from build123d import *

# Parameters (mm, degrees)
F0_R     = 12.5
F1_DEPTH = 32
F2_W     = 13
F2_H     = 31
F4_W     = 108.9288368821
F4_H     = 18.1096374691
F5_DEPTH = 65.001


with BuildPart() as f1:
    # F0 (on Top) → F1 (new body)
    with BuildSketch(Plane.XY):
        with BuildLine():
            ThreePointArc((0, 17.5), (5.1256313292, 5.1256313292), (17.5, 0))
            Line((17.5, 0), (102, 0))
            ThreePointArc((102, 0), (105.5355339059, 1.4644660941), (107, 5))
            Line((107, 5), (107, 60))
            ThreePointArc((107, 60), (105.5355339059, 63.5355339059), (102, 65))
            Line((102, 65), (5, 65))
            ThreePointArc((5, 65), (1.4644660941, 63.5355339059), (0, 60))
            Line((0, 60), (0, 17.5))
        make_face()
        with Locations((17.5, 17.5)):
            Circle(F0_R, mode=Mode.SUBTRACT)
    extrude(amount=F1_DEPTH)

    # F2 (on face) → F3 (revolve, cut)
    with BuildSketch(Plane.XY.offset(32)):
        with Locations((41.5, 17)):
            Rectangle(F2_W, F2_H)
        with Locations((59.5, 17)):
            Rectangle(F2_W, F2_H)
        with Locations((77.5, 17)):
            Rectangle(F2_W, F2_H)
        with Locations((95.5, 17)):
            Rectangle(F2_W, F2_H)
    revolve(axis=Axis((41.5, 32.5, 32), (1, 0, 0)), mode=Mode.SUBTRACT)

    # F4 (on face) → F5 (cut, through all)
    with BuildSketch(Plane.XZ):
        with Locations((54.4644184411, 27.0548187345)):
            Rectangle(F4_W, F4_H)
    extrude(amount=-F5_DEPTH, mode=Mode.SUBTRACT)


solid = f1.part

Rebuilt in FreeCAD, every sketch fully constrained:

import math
import FreeCAD as App
import Part
import Sketcher

V = App.Vector
Q = App.Units.Quantity


def add_polygon(sketch, points):
    """Adds a closed chain of lines whose ends are joined by coincident constraints."""
    first, n = sketch.GeometryCount, len(points)
    for a, b in zip(points, points[1:] + points[:1]):
        sketch.addGeometry(Part.LineSegment(App.Vector(*a, 0), App.Vector(*b, 0)), False)
    for i in range(n):
        sketch.addConstraint(Sketcher.Constraint("Coincident", first + i, 2, first + (i + 1) % n, 1))

doc = App.newDocument("Part")
body = doc.addObject("PartDesign::Body", "Body")

# Sketch on XY plane
sketch1 = doc.addObject("Sketcher::SketchObject", "Sketch")
body.addObject(sketch1)
sketch1.AttachmentSupport = (doc.XY_Plane, [""])
sketch1.MapMode = "FlatFace"
sketch1.addGeometry(Part.ArcOfCircle(Part.Circle(V(18, 18, 0), V(0, 0, 1), 18), math.radians(180), math.radians(270)), False)
sketch1.addGeometry(Part.LineSegment(V(18, 0, 0), V(102, 0, 0)), False)
sketch1.addGeometry(Part.ArcOfCircle(Part.Circle(V(102, 5, 0), V(0, 0, 1), 5), math.radians(-90), math.radians(0)), False)
sketch1.addGeometry(Part.LineSegment(V(107, 5, 0), V(107, 60, 0)), False)
sketch1.addGeometry(Part.ArcOfCircle(Part.Circle(V(102, 60, 0), V(0, 0, 1), 5), math.radians(0), math.radians(90)), False)
sketch1.addGeometry(Part.LineSegment(V(102, 65, 0), V(5, 65, 0)), False)
sketch1.addGeometry(Part.ArcOfCircle(Part.Circle(V(5, 60, 0), V(0, 0, 1), 5), math.radians(90), math.radians(180)), False)
sketch1.addGeometry(Part.LineSegment(V(0, 60, 0), V(0, 18, 0)), False)
sketch1.addGeometry(Part.Circle(V(18, 18, 0), V(0, 0, 1), 12), False)
sketch1.addConstraint(Sketcher.Constraint("Tangent", 0, 2, 1, 1))
sketch1.addConstraint(Sketcher.Constraint("Tangent", 1, 2, 2, 1))
sketch1.addConstraint(Sketcher.Constraint("Tangent", 2, 2, 3, 1))
sketch1.addConstraint(Sketcher.Constraint("Tangent", 3, 2, 4, 1))
sketch1.addConstraint(Sketcher.Constraint("Tangent", 4, 2, 5, 1))
sketch1.addConstraint(Sketcher.Constraint("Tangent", 5, 2, 6, 1))
sketch1.addConstraint(Sketcher.Constraint("Tangent", 6, 2, 7, 1))
sketch1.addConstraint(Sketcher.Constraint("Tangent", 7, 2, 0, 1))
sketch1.addConstraint(Sketcher.Constraint("Horizontal", 1))
sketch1.addConstraint(Sketcher.Constraint("Vertical", 3))
sketch1.addConstraint(Sketcher.Constraint("Horizontal", 5))
sketch1.addConstraint(Sketcher.Constraint("Vertical", 7))
sketch1.addConstraint(Sketcher.Constraint("Coincident", 8, 3, 0, 3))
sketch1.addConstraint(Sketcher.Constraint("Equal", 2, 4))
sketch1.addConstraint(Sketcher.Constraint("Equal", 4, 6))
sketch1.addConstraint(Sketcher.Constraint("PointOnObject", 0, 2, -1))
sketch1.addConstraint(Sketcher.Constraint("PointOnObject", 6, 2, -2))
sketch1.addConstraint(Sketcher.Constraint("Diameter", 8, Q("25 mm")))
sketch1.addConstraint(Sketcher.Constraint("Radius", 2, Q("5 mm")))
sketch1.addConstraint(Sketcher.Constraint("Radius", 0, Q("17.5 mm")))
sketch1.addConstraint(Sketcher.Constraint("DistanceX", 5, 2, 5, 1, Q("97 mm")))
sketch1.addConstraint(Sketcher.Constraint("DistanceY", 3, 1, 3, 2, Q("55 mm")))
pad1 = doc.addObject("PartDesign::Pad", "Pad")
body.addObject(pad1)
pad1.Profile = sketch1
pad1.Length = 32

# Sketch on XY plane
sketch2 = doc.addObject("Sketcher::SketchObject", "Sketch001")
body.addObject(sketch2)
sketch2.AttachmentSupport = (doc.XY_Plane, [""])
sketch2.MapMode = "FlatFace"
sketch2.AttachmentOffset = App.Placement(V(0, 0, 32), App.Rotation())
add_polygon(sketch2, [(35, 32), (35, 2), (48, 2), (48, 32)])  # lines 0-3
add_polygon(sketch2, [(53, 32), (53, 2), (66, 2), (66, 32)])  # lines 4-7
add_polygon(sketch2, [(71, 32), (71, 2), (84, 2), (84, 32)])  # lines 8-11
add_polygon(sketch2, [(89, 32), (89, 2), (102, 2), (102, 32)])  # lines 12-15
sketch2.addGeometry(Part.LineSegment(V(35, 32, 0), V(102, 32, 0)), True)  # axis
sketch2.addConstraint(Sketcher.Constraint("Vertical", 0))
sketch2.addConstraint(Sketcher.Constraint("Horizontal", 1))
sketch2.addConstraint(Sketcher.Constraint("Vertical", 2))
sketch2.addConstraint(Sketcher.Constraint("Horizontal", 3))
sketch2.addConstraint(Sketcher.Constraint("Vertical", 4))
sketch2.addConstraint(Sketcher.Constraint("Horizontal", 5))
sketch2.addConstraint(Sketcher.Constraint("Vertical", 6))
sketch2.addConstraint(Sketcher.Constraint("Horizontal", 7))
sketch2.addConstraint(Sketcher.Constraint("Vertical", 8))
sketch2.addConstraint(Sketcher.Constraint("Horizontal", 9))
sketch2.addConstraint(Sketcher.Constraint("Vertical", 10))
sketch2.addConstraint(Sketcher.Constraint("Horizontal", 11))
sketch2.addConstraint(Sketcher.Constraint("Vertical", 12))
sketch2.addConstraint(Sketcher.Constraint("Horizontal", 13))
sketch2.addConstraint(Sketcher.Constraint("Vertical", 14))
sketch2.addConstraint(Sketcher.Constraint("Horizontal", 15))
sketch2.addConstraint(Sketcher.Constraint("Horizontal", 16))
sketch2.addConstraint(Sketcher.Constraint("Coincident", 16, 1, 3, 2))
sketch2.addConstraint(Sketcher.Constraint("Coincident", 16, 2, 14, 2))
sketch2.addConstraint(Sketcher.Constraint("Horizontal", 1, 2, 4, 2))
sketch2.addConstraint(Sketcher.Constraint("Horizontal", 3, 2, 6, 2))
sketch2.addConstraint(Sketcher.Constraint("Horizontal", 5, 2, 8, 2))
sketch2.addConstraint(Sketcher.Constraint("Horizontal", 7, 2, 10, 2))
sketch2.addConstraint(Sketcher.Constraint("Horizontal", 9, 2, 12, 2))
sketch2.addConstraint(Sketcher.Constraint("Equal", 3, 5))
sketch2.addConstraint(Sketcher.Constraint("Equal", 7, 9))
sketch2.addConstraint(Sketcher.Constraint("Equal", 11, 13))
sketch2.addConstraint(Sketcher.Constraint("DistanceX", 1, 1, 1, 2, Q("13 mm")))
sketch2.addConstraint(Sketcher.Constraint("DistanceX", 16, 1, 16, 2, Q("67 mm")))
sketch2.addConstraint(Sketcher.Constraint("DistanceY", 0, 2, 0, 1, Q("31 mm")))
sketch2.addConstraint(Sketcher.Constraint("DistanceX", -1, 1, 0, 2, Q("35 mm")))
sketch2.addConstraint(Sketcher.Constraint("DistanceX", -1, 1, 4, 2, Q("53 mm")))
sketch2.addConstraint(Sketcher.Constraint("DistanceX", -1, 1, 8, 2, Q("71 mm")))
sketch2.addConstraint(Sketcher.Constraint("DistanceY", -1, 1, 0, 2, Q("1.5 mm")))
groove = doc.addObject("PartDesign::Groove", "Groove")
body.addObject(groove)
groove.Profile = sketch2
groove.ReferenceAxis = (sketch2, ["Axis0"])
groove.Angle = 360

# Sketch on XZ plane
sketch3 = doc.addObject("Sketcher::SketchObject", "Sketch002")
body.addObject(sketch3)
sketch3.AttachmentSupport = (doc.XZ_Plane, [""])
sketch3.MapMode = "FlatFace"
add_polygon(sketch3, [(0, 36), (0, 18), (109, 18), (109, 36)])  # lines 0-3
sketch3.addConstraint(Sketcher.Constraint("Vertical", 0))
sketch3.addConstraint(Sketcher.Constraint("Horizontal", 1))
sketch3.addConstraint(Sketcher.Constraint("Vertical", 2))
sketch3.addConstraint(Sketcher.Constraint("Horizontal", 3))
sketch3.addConstraint(Sketcher.Constraint("PointOnObject", 0, 2, -2))
sketch3.addConstraint(Sketcher.Constraint("DistanceY", -1, 1, 0, 2, Q("18 mm")))
sketch3.addConstraint(Sketcher.Constraint("DistanceX", 1, 1, 1, 2, Q("108.928837 mm")))
sketch3.addConstraint(Sketcher.Constraint("DistanceY", 0, 2, 0, 1, Q("18.109637 mm")))
pocket1 = doc.addObject("PartDesign::Pocket", "Pocket")
body.addObject(pocket1)
pocket1.Profile = sketch3
pocket1.Type = "ThroughAll"

doc.recompute()
